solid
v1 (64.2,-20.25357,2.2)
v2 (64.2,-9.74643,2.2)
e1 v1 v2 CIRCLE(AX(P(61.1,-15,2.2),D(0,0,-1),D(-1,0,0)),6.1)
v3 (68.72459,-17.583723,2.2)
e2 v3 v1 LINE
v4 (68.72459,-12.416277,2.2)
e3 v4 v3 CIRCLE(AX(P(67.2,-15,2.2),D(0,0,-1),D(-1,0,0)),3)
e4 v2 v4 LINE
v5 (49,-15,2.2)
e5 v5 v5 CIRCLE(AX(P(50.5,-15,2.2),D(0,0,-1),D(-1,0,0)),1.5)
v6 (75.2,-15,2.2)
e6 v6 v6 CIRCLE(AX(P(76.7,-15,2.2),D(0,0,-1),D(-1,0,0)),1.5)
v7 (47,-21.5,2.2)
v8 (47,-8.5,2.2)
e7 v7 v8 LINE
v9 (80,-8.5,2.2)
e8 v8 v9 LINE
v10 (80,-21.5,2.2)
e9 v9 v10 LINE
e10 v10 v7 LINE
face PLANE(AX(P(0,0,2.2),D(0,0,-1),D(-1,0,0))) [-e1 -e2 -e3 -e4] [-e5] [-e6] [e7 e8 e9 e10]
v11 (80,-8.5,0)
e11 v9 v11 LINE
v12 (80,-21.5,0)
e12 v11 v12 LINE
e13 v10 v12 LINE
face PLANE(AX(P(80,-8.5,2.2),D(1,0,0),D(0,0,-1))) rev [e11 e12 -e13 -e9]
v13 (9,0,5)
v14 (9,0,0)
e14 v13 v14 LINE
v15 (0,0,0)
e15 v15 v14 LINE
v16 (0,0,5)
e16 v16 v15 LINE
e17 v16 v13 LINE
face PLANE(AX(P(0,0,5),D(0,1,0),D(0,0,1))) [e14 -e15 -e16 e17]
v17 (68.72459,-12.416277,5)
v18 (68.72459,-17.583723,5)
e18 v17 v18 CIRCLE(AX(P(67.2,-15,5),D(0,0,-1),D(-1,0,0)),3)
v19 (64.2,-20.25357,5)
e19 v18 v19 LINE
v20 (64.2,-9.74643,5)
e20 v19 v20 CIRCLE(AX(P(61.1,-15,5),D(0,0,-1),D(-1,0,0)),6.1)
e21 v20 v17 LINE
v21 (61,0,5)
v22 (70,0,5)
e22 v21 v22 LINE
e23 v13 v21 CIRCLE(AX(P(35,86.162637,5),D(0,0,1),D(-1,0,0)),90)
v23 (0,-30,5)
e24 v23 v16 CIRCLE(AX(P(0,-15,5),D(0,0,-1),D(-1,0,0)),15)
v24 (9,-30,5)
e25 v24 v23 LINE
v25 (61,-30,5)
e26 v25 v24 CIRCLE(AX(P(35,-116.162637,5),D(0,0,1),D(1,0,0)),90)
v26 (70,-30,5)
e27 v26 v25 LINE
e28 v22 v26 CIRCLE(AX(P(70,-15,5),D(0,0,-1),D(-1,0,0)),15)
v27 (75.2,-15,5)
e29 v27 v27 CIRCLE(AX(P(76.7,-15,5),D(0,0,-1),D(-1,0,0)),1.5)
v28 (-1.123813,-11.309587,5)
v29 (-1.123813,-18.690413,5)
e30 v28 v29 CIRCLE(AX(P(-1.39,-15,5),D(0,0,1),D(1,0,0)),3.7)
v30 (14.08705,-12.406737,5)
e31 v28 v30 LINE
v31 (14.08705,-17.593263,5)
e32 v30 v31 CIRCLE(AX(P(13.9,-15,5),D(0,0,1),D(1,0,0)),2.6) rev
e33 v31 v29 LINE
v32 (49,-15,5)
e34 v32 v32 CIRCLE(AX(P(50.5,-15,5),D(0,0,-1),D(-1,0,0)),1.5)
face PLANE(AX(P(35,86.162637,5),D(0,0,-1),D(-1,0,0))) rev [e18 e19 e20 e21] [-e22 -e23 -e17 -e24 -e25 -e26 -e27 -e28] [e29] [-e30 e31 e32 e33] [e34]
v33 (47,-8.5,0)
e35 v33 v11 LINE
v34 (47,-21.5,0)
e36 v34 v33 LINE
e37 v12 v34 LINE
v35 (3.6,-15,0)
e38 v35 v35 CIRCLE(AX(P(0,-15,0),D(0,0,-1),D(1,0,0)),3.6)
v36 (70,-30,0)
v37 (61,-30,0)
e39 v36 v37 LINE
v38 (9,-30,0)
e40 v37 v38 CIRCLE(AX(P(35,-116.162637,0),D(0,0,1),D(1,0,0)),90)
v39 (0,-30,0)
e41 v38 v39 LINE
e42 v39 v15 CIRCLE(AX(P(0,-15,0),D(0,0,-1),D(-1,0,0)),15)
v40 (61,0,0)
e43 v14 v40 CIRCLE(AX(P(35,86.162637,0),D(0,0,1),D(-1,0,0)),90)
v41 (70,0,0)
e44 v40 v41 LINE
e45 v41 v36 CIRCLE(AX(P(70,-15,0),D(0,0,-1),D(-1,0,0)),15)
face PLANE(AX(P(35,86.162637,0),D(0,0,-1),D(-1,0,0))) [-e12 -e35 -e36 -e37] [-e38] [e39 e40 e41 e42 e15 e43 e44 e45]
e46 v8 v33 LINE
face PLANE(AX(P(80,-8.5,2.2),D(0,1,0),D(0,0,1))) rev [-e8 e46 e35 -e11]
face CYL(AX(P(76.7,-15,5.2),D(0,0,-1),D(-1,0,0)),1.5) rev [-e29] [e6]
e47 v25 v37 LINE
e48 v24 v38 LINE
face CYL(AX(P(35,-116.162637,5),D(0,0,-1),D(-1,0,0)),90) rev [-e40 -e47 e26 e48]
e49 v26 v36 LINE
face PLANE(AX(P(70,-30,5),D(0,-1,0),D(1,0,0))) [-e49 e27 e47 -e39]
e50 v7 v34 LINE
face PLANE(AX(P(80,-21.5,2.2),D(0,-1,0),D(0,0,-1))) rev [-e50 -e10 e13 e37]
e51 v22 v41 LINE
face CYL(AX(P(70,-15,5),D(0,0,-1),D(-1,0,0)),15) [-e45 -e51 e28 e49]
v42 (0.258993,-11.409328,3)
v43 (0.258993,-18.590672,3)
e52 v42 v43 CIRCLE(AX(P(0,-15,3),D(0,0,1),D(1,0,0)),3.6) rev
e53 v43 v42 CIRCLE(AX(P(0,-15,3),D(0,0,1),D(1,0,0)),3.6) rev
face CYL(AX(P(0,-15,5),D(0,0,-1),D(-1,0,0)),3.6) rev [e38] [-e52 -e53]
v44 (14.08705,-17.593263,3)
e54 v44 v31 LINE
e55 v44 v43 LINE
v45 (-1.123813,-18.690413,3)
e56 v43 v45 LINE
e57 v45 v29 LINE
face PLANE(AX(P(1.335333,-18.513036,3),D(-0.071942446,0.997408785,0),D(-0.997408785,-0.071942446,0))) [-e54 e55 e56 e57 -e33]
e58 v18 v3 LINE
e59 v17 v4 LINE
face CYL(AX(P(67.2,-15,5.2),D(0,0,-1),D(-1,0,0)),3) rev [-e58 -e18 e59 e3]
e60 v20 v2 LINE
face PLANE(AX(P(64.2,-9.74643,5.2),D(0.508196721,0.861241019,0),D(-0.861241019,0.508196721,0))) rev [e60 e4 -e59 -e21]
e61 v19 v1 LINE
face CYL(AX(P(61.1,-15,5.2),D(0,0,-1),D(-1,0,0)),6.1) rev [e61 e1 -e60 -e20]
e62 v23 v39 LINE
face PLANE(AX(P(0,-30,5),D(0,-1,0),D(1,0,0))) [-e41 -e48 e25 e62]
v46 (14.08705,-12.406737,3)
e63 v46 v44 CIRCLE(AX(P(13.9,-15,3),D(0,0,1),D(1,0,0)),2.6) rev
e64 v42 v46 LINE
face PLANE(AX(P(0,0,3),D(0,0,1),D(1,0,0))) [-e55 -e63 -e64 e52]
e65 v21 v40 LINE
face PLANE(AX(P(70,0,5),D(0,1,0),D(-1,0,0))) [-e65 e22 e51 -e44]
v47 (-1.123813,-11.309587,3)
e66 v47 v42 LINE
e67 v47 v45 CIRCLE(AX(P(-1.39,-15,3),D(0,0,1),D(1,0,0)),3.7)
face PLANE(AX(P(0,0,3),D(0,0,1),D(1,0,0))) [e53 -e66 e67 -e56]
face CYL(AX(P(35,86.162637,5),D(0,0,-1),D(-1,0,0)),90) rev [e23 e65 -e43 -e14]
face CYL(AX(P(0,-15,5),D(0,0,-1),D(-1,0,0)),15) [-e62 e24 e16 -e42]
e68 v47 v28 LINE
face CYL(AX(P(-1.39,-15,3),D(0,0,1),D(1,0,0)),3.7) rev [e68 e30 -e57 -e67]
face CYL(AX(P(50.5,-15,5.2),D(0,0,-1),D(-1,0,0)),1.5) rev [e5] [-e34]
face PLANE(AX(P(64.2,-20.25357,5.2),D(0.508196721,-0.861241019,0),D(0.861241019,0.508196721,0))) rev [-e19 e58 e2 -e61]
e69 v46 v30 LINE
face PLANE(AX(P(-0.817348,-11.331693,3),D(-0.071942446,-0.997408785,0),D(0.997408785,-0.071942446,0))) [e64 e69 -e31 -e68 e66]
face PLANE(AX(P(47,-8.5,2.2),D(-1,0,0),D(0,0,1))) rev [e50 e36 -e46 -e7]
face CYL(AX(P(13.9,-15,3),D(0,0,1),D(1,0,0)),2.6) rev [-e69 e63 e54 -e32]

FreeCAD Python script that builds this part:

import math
import FreeCAD as App
import Part
import Sketcher

V = App.Vector
Q = App.Units.Quantity


def add_polygon(sketch, points):
    """Adds a closed chain of lines whose ends are joined by coincident constraints."""
    first, n = sketch.GeometryCount, len(points)
    for a, b in zip(points, points[1:] + points[:1]):
        sketch.addGeometry(Part.LineSegment(App.Vector(*a, 0), App.Vector(*b, 0)), False)
    for i in range(n):
        sketch.addConstraint(Sketcher.Constraint("Coincident", first + i, 2, first + (i + 1) % n, 1))

doc = App.newDocument("Part")
body = doc.addObject("PartDesign::Body", "Body")

sketch1 = body.newObject("Sketcher::SketchObject", "Sketch")
sketch1.AttachmentSupport = (doc.getObject("XY_Plane"), [""])
sketch1.MapMode = "FlatFace"
sketch1.addGeometry(Part.LineSegment(V(61, 0, 0), V(70, 0, 0)), False)
sketch1.addGeometry(Part.ArcOfCircle(Part.Circle(V(70, -15, 0), V(0, 0, 1), 15), math.radians(-90), math.radians(90)), False)
sketch1.addGeometry(Part.LineSegment(V(70, -30, 0), V(61, -30, 0)), False)
sketch1.addGeometry(Part.ArcOfCircle(Part.Circle(V(35, -116.2, 0), V(0, 0, 1), 90), math.radians(73), math.radians(107)), False)
sketch1.addGeometry(Part.LineSegment(V(9, -30, 0), V(0, -30, 0)), False)
sketch1.addGeometry(Part.ArcOfCircle(Part.Circle(V(0, -15, 0), V(0, 0, 1), 15), math.radians(90), math.radians(270)), False)
sketch1.addGeometry(Part.LineSegment(V(0, 0, 0), V(9, 0, 0)), False)
sketch1.addGeometry(Part.ArcOfCircle(Part.Circle(V(35, 86.2, 0), V(0, 0, 1), 90), math.radians(-107), math.radians(-73)), False)
sketch1.addGeometry(Part.Circle(V(0, -15, 0), V(0, 0, 1), 3.6), False)
sketch1.addConstraint(Sketcher.Constraint("Tangent", 0, 2, 1, 2))
sketch1.addConstraint(Sketcher.Constraint("Tangent", 1, 1, 2, 1))
sketch1.addConstraint(Sketcher.Constraint("Coincident", 2, 2, 3, 1))
sketch1.addConstraint(Sketcher.Constraint("Coincident", 3, 2, 4, 1))
sketch1.addConstraint(Sketcher.Constraint("Tangent", 4, 2, 5, 2))
sketch1.addConstraint(Sketcher.Constraint("Tangent", 5, 1, 6, 1))
sketch1.addConstraint(Sketcher.Constraint("Coincident", 6, 2, 7, 1))
sketch1.addConstraint(Sketcher.Constraint("Coincident", 7, 2, 0, 1))
sketch1.addConstraint(Sketcher.Constraint("Horizontal", 0))
sketch1.addConstraint(Sketcher.Constraint("Horizontal", 2))
sketch1.addConstraint(Sketcher.Constraint("Horizontal", 4))
sketch1.addConstraint(Sketcher.Constraint("Horizontal", 6))
sketch1.addConstraint(Sketcher.Constraint("Coincident", 5, 1, -1, 1))
sketch1.addConstraint(Sketcher.Constraint("Coincident", 8, 3, 5, 3))
sketch1.addConstraint(Sketcher.Constraint("Equal", 1, 5))
sketch1.addConstraint(Sketcher.Constraint("Equal", 3, 7))
sketch1.addConstraint(Sketcher.Constraint("PointOnObject", 0, 2, -1))
sketch1.addConstraint(Sketcher.Constraint("Vertical", 3, 3, 7, 3))
sketch1.addConstraint(Sketcher.Constraint("Vertical", 3, 2, 6, 2))
sketch1.addConstraint(Sketcher.Constraint("Equal", 2, 4))
sketch1.addConstraint(Sketcher.Constraint("Radius", 1, Q("15 mm")))
sketch1.addConstraint(Sketcher.Constraint("Radius", 3, Q("90 mm")))
sketch1.addConstraint(Sketcher.Constraint("Diameter", 8, Q("7.2 mm")))
sketch1.addConstraint(Sketcher.Constraint("DistanceX", 0, 1, 0, 2, Q("9 mm")))
sketch1.addConstraint(Sketcher.Constraint("DistanceX", -1, 1, 1, 3, Q("70 mm")))
pad1 = body.newObject("PartDesign::Pad", "Pad")
pad1.Profile = sketch1
pad1.Length = 5

sketch2 = body.newObject("Sketcher::SketchObject", "Sketch001")
sketch2.AttachmentSupport = (doc.getObject("XY_Plane"), [""])
sketch2.MapMode = "FlatFace"
sketch2.AttachmentOffset = App.Placement(V(0, 0, 3), App.Rotation())
sketch2.addGeometry(Part.LineSegment(V(14.1, -12.4, 0), V(0.3, -11.4, 0)), False)
sketch2.addGeometry(Part.ArcOfCircle(Part.Circle(V(0, -15, 0), V(0, 0, 1), 3.6), math.radians(0), math.radians(86)), False)
sketch2.addGeometry(Part.ArcOfCircle(Part.Circle(V(0, -15, 0), V(0, 0, 1), 3.6), math.radians(-86), math.radians(0)), False)
sketch2.addGeometry(Part.LineSegment(V(0.3, -18.6, 0), V(14.1, -17.6, 0)), False)
sketch2.addGeometry(Part.ArcOfCircle(Part.Circle(V(13.9, -15, 0), V(0, 0, 1), 2.6), math.radians(-86), math.radians(86)), False)
sketch2.addGeometry(Part.LineSegment(V(0.3, -11.4, 0), V(-1.1, -11.3, 0)), False)
sketch2.addGeometry(Part.ArcOfCircle(Part.Circle(V(-1.4, -15, 0), V(0, 0, 1), 3.7), math.radians(86), math.radians(274)), False)
sketch2.addGeometry(Part.LineSegment(V(-1.1, -18.7, 0), V(0.3, -18.6, 0)), False)
sketch2.addGeometry(Part.ArcOfCircle(Part.Circle(V(0, -15, 0), V(0, 0, 1), 3.6), math.radians(86), math.radians(274)), False)
sketch2.addConstraint(Sketcher.Constraint("Tangent", 0, 2, 1, 2))
sketch2.addConstraint(Sketcher.Constraint("Tangent", 1, 1, 2, 2))
sketch2.addConstraint(Sketcher.Constraint("Tangent", 2, 1, 3, 1))
sketch2.addConstraint(Sketcher.Constraint("Tangent", 3, 2, 4, 1))
sketch2.addConstraint(Sketcher.Constraint("Tangent", 4, 2, 0, 1))
sketch2.addConstraint(Sketcher.Constraint("Tangent", 5, 2, 6, 1))
sketch2.addConstraint(Sketcher.Constraint("Tangent", 6, 2, 7, 1))
sketch2.addConstraint(Sketcher.Constraint("Tangent", 7, 2, 8, 2))
sketch2.addConstraint(Sketcher.Constraint("Tangent", 8, 1, 5, 1))
sketch2.addConstraint(Sketcher.Constraint("Coincident", 8, 3, 1, 3))
sketch2.addConstraint(Sketcher.Constraint("Coincident", 7, 2, 2, 1))
sketch2.addConstraint(Sketcher.Constraint("Coincident", 8, 1, 0, 2))
sketch2.addConstraint(Sketcher.Constraint("PointOnObject", 1, 3, -2))
sketch2.addConstraint(Sketcher.Constraint("Horizontal", 2, 3, 4, 3))
sketch2.addConstraint(Sketcher.Constraint("Horizontal", 8, 3, 1, 1))
sketch2.addConstraint(Sketcher.Constraint("Radius", 1, Q("3.6 mm")))
sketch2.addConstraint(Sketcher.Constraint("Radius", 4, Q("2.6 mm")))
sketch2.addConstraint(Sketcher.Constraint("Radius", 6, Q("3.7 mm")))
sketch2.addConstraint(Sketcher.Constraint("DistanceY", 1, 3, -1, 1, Q("15 mm")))
sketch2.addConstraint(Sketcher.Constraint("DistanceX", -1, 1, 4, 3, Q("13.9 mm")))
pocket1 = body.newObject("PartDesign::Pocket", "Pocket")
pocket1.Profile = sketch2
pocket1.Length = 2
pocket1.Reversed = True

sketch3 = body.newObject("Sketcher::SketchObject", "Sketch002")
sketch3.AttachmentSupport = (doc.getObject("XY_Plane"), [""])
sketch3.MapMode = "FlatFace"
add_polygon(sketch3, [(80, -8), (80, -22), (47, -22), (47, -8)])
sketch3.addConstraint(Sketcher.Constraint("Vertical", 0))
sketch3.addConstraint(Sketcher.Constraint("Horizontal", 1))
sketch3.addConstraint(Sketcher.Constraint("Vertical", 2))
sketch3.addConstraint(Sketcher.Constraint("Horizontal", 3))
sketch3.addConstraint(Sketcher.Constraint("DistanceX", 1, 2, 1, 1, Q("33 mm")))
sketch3.addConstraint(Sketcher.Constraint("DistanceY", 0, 2, 0, 1, Q("13 mm")))
sketch3.addConstraint(Sketcher.Constraint("DistanceX", -1, 1, 0, 2, Q("80 mm")))
sketch3.addConstraint(Sketcher.Constraint("DistanceY", 0, 2, -1, 1, Q("21.5 mm")))
pocket2 = body.newObject("PartDesign::Pocket", "Pocket001")
pocket2.Profile = sketch3
pocket2.Length = 2.2
pocket2.Reversed = True

sketch4 = body.newObject("Sketcher::SketchObject", "Sketch003")
sketch4.AttachmentSupport = (doc.getObject("XY_Plane"), [""])
sketch4.MapMode = "FlatFace"
sketch4.AttachmentOffset = App.Placement(V(0, 0, 2.2), App.Rotation())
sketch4.addGeometry(Part.LineSegment(V(64.2, -9.74643, 0), V(68.72459, -12.416277, 0)), False)
sketch4.addGeometry(Part.ArcOfCircle(Part.Circle(V(67.2, -15, 0), V(0, 0, 1), 3), math.radians(-59.456211), math.radians(59.456211)), False)
sketch4.addGeometry(Part.LineSegment(V(68.72459, -17.583723, 0), V(64.2, -20.25357, 0)), False)
sketch4.addGeometry(Part.ArcOfCircle(Part.Circle(V(61.1, -15, 0), V(0, 0, 1), 6.1), math.radians(59.456211), math.radians(300.543789)), False)
sketch4.addConstraint(Sketcher.Constraint("Tangent", 0, 2, 1, 2))
sketch4.addConstraint(Sketcher.Constraint("Tangent", 1, 1, 2, 1))
sketch4.addConstraint(Sketcher.Constraint("Tangent", 2, 2, 3, 2))
sketch4.addConstraint(Sketcher.Constraint("Tangent", 3, 1, 0, 1))
sketch4.addConstraint(Sketcher.Constraint("Horizontal", 1, 3, 3, 3))
sketch4.addConstraint(Sketcher.Constraint("Radius", 1, Q("3 mm")))
sketch4.addConstraint(Sketcher.Constraint("Radius", 3, Q("6.1 mm")))
sketch4.addConstraint(Sketcher.Constraint("DistanceY", 1, 3, -1, 1, Q("15 mm")))
sketch4.addConstraint(Sketcher.Constraint("DistanceX", 2, 2, 1, 3, Q("3 mm")))
sketch4.addConstraint(Sketcher.Constraint("DistanceX", -1, 1, 1, 3, Q("67.2 mm")))
pocket3 = body.newObject("PartDesign::Pocket", "Pocket002")
pocket3.Profile = sketch4
pocket3.Length = 3
pocket3.Reversed = True

sketch5 = body.newObject("Sketcher::SketchObject", "Sketch004")
sketch5.AttachmentSupport = (doc.getObject("XY_Plane"), [""])
sketch5.MapMode = "FlatFace"
sketch5.AttachmentOffset = App.Placement(V(0, 0, 2.2), App.Rotation())
sketch5.addGeometry(Part.Circle(V(50.5, -15, 0), V(0, 0, 1), 1.5), False)
sketch5.addGeometry(Part.Circle(V(76.7, -15, 0), V(0, 0, 1), 1.5), False)
sketch5.addConstraint(Sketcher.Constraint("Equal", 0, 1))
sketch5.addConstraint(Sketcher.Constraint("Horizontal", 0, 3, 1, 3))
sketch5.addConstraint(Sketcher.Constraint("Diameter", 0, Q("3 mm")))
sketch5.addConstraint(Sketcher.Constraint("DistanceY", 0, 3, -1, 1, Q("15 mm")))
sketch5.addConstraint(Sketcher.Constraint("DistanceX", -1, 1, 0, 3, Q("50.5 mm")))
sketch5.addConstraint(Sketcher.Constraint("DistanceX", -1, 1, 1, 3, Q("76.7 mm")))
pocket4 = body.newObject("PartDesign::Pocket", "Pocket003")
pocket4.Profile = sketch5
pocket4.Length = 3
pocket4.Reversed = True

doc.recompute()
